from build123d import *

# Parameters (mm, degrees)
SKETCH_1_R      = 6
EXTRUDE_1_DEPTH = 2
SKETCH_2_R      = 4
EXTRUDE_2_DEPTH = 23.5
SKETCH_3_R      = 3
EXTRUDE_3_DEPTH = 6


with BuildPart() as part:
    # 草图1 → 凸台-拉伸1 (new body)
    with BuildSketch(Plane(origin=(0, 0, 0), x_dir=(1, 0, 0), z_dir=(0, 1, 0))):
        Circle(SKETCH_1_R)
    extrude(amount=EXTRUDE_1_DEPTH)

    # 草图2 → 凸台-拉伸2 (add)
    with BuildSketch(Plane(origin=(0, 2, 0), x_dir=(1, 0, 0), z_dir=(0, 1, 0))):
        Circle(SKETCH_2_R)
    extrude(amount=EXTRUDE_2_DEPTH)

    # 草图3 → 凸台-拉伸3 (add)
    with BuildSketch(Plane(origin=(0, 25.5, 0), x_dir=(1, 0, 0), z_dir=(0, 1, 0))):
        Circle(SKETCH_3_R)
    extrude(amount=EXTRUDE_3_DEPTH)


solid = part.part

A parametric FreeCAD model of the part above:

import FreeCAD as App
import Part
import Sketcher

V = App.Vector

doc = App.newDocument("Part")
params = doc.addObject("Spreadsheet::Sheet", "Params")
for row, (alias, value) in enumerate([
    ("sketch1_diameter", "12 mm"),
    ("pad1_length", "2 mm"),
    ("sketch2_diameter", "8 mm"),
    ("pad2_length", "23.5 mm"),
    ("sketch3_diameter", "6 mm"),
    ("pad3_length", "6 mm"),
], start=1):
    params.set(f"A{row}", alias)
    params.set(f"B{row}", "=" + value)
    params.setAlias(f"B{row}", alias)

body = doc.addObject("PartDesign::Body", "Body")

# Sketch on XZ plane
sketch1 = body.newObject("Sketcher::SketchObject", "Sketch")
sketch1.AttachmentSupport = (doc.getObject("XZ_Plane"), [""])
sketch1.MapMode = "FlatFace"
sketch1.addGeometry(Part.Circle(V(0, 0, 0), V(0, 0, 1), 6), False)
sketch1.addConstraint([
    Sketcher.Constraint("Coincident", 0, 3, -1, 1),
    Sketcher.Constraint("Diameter", 0, 12.0),
])
sketch1.setExpression("Constraints[1]", "Params.sketch1_diameter")
pad1 = body.newObject("PartDesign::Pad", "Pad")
pad1.Profile = sketch1
pad1.setExpression("Length", "Params.pad1_length")
pad1.Reversed = True

# Sketch on XZ plane
sketch2 = body.newObject("Sketcher::SketchObject", "Sketch001")
sketch2.AttachmentSupport = (doc.getObject("XZ_Plane"), [""])
sketch2.MapMode = "FlatFace"
sketch2.AttachmentOffset = App.Placement(V(0, 0, -2), App.Rotation())
sketch2.addGeometry(Part.Circle(V(0, 0, 0), V(0, 0, 1), 4), False)
sketch2.addConstraint([
    Sketcher.Constraint("Coincident", 0, 3, -1, 1),
    Sketcher.Constraint("Diameter", 0, 8.0),
])
sketch2.setExpression("Constraints[1]", "Params.sketch2_diameter")
pad2 = body.newObject("PartDesign::Pad", "Pad001")
pad2.Profile = sketch2
pad2.setExpression("Length", "Params.pad2_length")
pad2.Reversed = True

# Sketch on XZ plane
sketch3 = body.newObject("Sketcher::SketchObject", "Sketch002")
sketch3.AttachmentSupport = (doc.getObject("XZ_Plane"), [""])
sketch3.MapMode = "FlatFace"
sketch3.AttachmentOffset = App.Placement(V(0, 0, -25.5), App.Rotation())
sketch3.addGeometry(Part.Circle(V(0, 0, 0), V(0, 0, 1), 3), False)
sketch3.addConstraint([
    Sketcher.Constraint("Coincident", 0, 3, -1, 1),
    Sketcher.Constraint("Diameter", 0, 6.0),
])
sketch3.setExpression("Constraints[1]", "Params.sketch3_diameter")
pad3 = body.newObject("PartDesign::Pad", "Pad002")
pad3.Profile = sketch3
pad3.setExpression("Length", "Params.pad3_length")
pad3.Reversed = True

doc.recompute()
